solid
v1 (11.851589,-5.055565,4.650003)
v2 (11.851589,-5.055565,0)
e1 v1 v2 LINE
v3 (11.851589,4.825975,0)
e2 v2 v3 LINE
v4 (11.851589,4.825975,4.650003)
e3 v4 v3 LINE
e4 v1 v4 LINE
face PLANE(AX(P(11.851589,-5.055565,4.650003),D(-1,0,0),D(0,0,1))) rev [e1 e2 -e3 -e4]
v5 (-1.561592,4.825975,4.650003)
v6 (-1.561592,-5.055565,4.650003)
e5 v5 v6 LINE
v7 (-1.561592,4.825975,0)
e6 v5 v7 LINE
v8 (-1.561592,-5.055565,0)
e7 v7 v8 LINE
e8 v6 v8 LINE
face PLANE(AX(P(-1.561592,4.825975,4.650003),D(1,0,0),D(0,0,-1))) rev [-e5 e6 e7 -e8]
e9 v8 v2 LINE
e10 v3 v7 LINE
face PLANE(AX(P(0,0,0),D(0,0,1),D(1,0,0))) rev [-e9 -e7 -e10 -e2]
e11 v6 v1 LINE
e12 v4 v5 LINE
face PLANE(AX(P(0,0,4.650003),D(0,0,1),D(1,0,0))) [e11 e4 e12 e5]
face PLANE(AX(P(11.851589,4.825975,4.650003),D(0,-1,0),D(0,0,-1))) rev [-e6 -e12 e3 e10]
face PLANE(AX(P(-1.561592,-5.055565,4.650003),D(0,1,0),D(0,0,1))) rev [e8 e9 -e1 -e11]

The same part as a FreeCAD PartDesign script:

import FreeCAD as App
import Part
import Sketcher

V = App.Vector
Q = App.Units.Quantity

doc = App.newDocument("Part")
body = doc.addObject("PartDesign::Body", "Body")

# Sketch on XY plane
sketch1 = body.newObject("Sketcher::SketchObject", "Sketch")
sketch1.AttachmentSupport = (doc.getObject("XY_Plane"), [""])
sketch1.MapMode = "FlatFace"
sketch1.addGeometry([
    Part.LineSegment(V(-2, 5, 0), V(-2, -5, 0)),
    Part.LineSegment(V(-2, -5, 0), V(12, -5, 0)),
    Part.LineSegment(V(12, -5, 0), V(12, 5, 0)),
    Part.LineSegment(V(12, 5, 0), V(-2, 5, 0)),
], False)
sketch1.addConstraint([
    Sketcher.Constraint("Coincident", 0, 2, 1, 1),
    Sketcher.Constraint("Coincident", 1, 2, 2, 1),
    Sketcher.Constraint("Coincident", 2, 2, 3, 1),
    Sketcher.Constraint("Coincident", 3, 2, 0, 1),
    Sketcher.Constraint("Vertical", 0),
    Sketcher.Constraint("Horizontal", 1),
    Sketcher.Constraint("Vertical", 2),
    Sketcher.Constraint("Horizontal", 3),
    Sketcher.Constraint("DistanceX", 1, 1, 1, 2, Q("13.413181 mm")),
    Sketcher.Constraint("DistanceY", 0, 2, 0, 1, Q("9.88154 mm")),
    Sketcher.Constraint("DistanceX", -1, 1, 1, 2, Q("11.851589 mm")),
    Sketcher.Constraint("DistanceY", 0, 2, -1, 1, Q("5.055565 mm")),
])
pad1 = body.newObject("PartDesign::Pad", "Pad")
pad1.Profile = sketch1
pad1.Length = 4.650003

doc.recompute()
